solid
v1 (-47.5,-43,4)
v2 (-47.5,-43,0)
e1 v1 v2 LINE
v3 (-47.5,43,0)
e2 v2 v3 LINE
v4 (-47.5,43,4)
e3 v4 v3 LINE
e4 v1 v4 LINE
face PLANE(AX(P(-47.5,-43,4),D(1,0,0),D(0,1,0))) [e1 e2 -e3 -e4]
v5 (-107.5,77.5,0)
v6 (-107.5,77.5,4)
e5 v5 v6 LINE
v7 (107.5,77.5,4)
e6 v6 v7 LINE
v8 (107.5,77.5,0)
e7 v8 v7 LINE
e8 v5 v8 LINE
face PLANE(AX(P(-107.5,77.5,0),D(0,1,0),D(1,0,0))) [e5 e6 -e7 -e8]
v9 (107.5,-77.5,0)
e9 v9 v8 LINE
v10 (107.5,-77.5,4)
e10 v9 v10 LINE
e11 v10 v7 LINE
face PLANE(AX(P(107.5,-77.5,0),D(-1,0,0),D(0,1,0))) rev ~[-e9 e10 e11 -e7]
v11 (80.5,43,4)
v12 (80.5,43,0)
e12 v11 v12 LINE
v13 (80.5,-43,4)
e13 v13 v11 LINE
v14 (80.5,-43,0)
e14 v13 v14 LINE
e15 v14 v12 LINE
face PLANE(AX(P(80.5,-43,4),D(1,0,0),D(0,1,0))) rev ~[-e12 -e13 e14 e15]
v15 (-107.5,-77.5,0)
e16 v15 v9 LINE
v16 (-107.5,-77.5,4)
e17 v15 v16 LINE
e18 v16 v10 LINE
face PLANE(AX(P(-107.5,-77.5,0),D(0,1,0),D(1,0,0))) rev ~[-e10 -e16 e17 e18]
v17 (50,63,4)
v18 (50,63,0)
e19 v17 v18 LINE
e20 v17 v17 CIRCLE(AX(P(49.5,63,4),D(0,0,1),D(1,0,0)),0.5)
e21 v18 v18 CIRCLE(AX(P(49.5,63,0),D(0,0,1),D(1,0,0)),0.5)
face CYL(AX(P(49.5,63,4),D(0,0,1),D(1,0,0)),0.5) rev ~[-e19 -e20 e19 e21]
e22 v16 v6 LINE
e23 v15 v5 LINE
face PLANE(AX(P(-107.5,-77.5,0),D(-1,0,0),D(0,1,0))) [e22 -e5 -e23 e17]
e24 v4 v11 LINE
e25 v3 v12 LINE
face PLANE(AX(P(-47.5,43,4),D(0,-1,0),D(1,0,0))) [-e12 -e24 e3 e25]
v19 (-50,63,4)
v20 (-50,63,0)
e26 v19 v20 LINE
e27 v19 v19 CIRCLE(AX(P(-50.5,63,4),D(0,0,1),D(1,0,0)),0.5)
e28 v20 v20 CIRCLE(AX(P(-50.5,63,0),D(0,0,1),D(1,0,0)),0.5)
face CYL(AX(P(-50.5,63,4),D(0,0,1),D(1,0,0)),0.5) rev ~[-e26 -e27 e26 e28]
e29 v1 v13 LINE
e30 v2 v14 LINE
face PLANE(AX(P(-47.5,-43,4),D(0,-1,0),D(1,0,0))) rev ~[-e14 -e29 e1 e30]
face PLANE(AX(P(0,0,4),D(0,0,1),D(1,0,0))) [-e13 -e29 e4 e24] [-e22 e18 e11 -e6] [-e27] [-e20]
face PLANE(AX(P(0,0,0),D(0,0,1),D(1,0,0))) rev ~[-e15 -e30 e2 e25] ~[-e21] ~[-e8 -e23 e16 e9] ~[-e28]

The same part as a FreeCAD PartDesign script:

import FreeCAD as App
import Part
import Sketcher

V = App.Vector
Q = App.Units.Quantity


def add_polygon(sketch, points):
    """Adds a closed chain of lines whose ends are joined by coincident constraints."""
    first, n = sketch.GeometryCount, len(points)
    for a, b in zip(points, points[1:] + points[:1]):
        sketch.addGeometry(Part.LineSegment(App.Vector(*a, 0), App.Vector(*b, 0)), False)
    for i in range(n):
        sketch.addConstraint(Sketcher.Constraint("Coincident", first + i, 2, first + (i + 1) % n, 1))

doc = App.newDocument("Part")
body = doc.addObject("PartDesign::Body", "Body")

sketch1 = body.newObject("Sketcher::SketchObject", "Sketch")
sketch1.AttachmentSupport = (doc.getObject("XY_Plane"), [""])
sketch1.MapMode = "FlatFace"
add_polygon(sketch1, [(-108, 78), (-108, -78), (108, -78), (108, 78)])
sketch1.addConstraint(Sketcher.Constraint("Vertical", 0))
sketch1.addConstraint(Sketcher.Constraint("Horizontal", 1))
sketch1.addConstraint(Sketcher.Constraint("Vertical", 2))
sketch1.addConstraint(Sketcher.Constraint("Horizontal", 3))
sketch1.addConstraint(Sketcher.Constraint("Symmetric", 0, 2, 2, 2, -1, 1))
sketch1.addConstraint(Sketcher.Constraint("DistanceX", 1, 1, 1, 2, Q("215 mm")))
sketch1.addConstraint(Sketcher.Constraint("DistanceY", 0, 2, 0, 1, Q("155 mm")))
pad1 = body.newObject("PartDesign::Pad", "Pad")
pad1.Profile = sketch1
pad1.Length = 4

sketch2 = body.newObject("Sketcher::SketchObject", "Sketch001")
sketch2.AttachmentSupport = (doc.getObject("XY_Plane"), [""])
sketch2.MapMode = "FlatFace"
sketch2.AttachmentOffset = App.Placement(V(0, 0, 4), App.Rotation())
sketch2.addGeometry(Part.Circle(V(-50.5, 63, 0), V(0, 0, 1), 0.5), False)
sketch2.addGeometry(Part.Circle(V(49.5, 63, 0), V(0, 0, 1), 0.5), False)
add_polygon(sketch2, [(-47.5, 43), (-47.5, -43), (80.5, -43), (80.5, 43)])
sketch2.addConstraint(Sketcher.Constraint("Vertical", 2))
sketch2.addConstraint(Sketcher.Constraint("Horizontal", 3))
sketch2.addConstraint(Sketcher.Constraint("Vertical", 4))
sketch2.addConstraint(Sketcher.Constraint("Horizontal", 5))
sketch2.addConstraint(Sketcher.Constraint("Equal", 0, 1))
sketch2.addConstraint(Sketcher.Constraint("Horizontal", 0, 3, 1, 3))
sketch2.addConstraint(Sketcher.Constraint("Diameter", 0, Q("1 mm")))
sketch2.addConstraint(Sketcher.Constraint("DistanceX", 3, 1, 3, 2, Q("128 mm")))
sketch2.addConstraint(Sketcher.Constraint("DistanceY", 2, 2, 2, 1, Q("86 mm")))
sketch2.addConstraint(Sketcher.Constraint("DistanceY", -1, 1, 0, 3, Q("63 mm")))
sketch2.addConstraint(Sketcher.Constraint("DistanceY", 2, 2, -1, 1, Q("43 mm")))
sketch2.addConstraint(Sketcher.Constraint("DistanceX", 0, 3, 1, 3, Q("100 mm")))
sketch2.addConstraint(Sketcher.Constraint("DistanceX", 0, 3, 2, 2, Q("3 mm")))
sketch2.addConstraint(Sketcher.Constraint("DistanceX", 0, 3, -1, 1, Q("50.5 mm")))
pocket1 = body.newObject("PartDesign::Pocket", "Pocket")
pocket1.Profile = sketch2
pocket1.Type = "ThroughAll"

doc.recompute()
